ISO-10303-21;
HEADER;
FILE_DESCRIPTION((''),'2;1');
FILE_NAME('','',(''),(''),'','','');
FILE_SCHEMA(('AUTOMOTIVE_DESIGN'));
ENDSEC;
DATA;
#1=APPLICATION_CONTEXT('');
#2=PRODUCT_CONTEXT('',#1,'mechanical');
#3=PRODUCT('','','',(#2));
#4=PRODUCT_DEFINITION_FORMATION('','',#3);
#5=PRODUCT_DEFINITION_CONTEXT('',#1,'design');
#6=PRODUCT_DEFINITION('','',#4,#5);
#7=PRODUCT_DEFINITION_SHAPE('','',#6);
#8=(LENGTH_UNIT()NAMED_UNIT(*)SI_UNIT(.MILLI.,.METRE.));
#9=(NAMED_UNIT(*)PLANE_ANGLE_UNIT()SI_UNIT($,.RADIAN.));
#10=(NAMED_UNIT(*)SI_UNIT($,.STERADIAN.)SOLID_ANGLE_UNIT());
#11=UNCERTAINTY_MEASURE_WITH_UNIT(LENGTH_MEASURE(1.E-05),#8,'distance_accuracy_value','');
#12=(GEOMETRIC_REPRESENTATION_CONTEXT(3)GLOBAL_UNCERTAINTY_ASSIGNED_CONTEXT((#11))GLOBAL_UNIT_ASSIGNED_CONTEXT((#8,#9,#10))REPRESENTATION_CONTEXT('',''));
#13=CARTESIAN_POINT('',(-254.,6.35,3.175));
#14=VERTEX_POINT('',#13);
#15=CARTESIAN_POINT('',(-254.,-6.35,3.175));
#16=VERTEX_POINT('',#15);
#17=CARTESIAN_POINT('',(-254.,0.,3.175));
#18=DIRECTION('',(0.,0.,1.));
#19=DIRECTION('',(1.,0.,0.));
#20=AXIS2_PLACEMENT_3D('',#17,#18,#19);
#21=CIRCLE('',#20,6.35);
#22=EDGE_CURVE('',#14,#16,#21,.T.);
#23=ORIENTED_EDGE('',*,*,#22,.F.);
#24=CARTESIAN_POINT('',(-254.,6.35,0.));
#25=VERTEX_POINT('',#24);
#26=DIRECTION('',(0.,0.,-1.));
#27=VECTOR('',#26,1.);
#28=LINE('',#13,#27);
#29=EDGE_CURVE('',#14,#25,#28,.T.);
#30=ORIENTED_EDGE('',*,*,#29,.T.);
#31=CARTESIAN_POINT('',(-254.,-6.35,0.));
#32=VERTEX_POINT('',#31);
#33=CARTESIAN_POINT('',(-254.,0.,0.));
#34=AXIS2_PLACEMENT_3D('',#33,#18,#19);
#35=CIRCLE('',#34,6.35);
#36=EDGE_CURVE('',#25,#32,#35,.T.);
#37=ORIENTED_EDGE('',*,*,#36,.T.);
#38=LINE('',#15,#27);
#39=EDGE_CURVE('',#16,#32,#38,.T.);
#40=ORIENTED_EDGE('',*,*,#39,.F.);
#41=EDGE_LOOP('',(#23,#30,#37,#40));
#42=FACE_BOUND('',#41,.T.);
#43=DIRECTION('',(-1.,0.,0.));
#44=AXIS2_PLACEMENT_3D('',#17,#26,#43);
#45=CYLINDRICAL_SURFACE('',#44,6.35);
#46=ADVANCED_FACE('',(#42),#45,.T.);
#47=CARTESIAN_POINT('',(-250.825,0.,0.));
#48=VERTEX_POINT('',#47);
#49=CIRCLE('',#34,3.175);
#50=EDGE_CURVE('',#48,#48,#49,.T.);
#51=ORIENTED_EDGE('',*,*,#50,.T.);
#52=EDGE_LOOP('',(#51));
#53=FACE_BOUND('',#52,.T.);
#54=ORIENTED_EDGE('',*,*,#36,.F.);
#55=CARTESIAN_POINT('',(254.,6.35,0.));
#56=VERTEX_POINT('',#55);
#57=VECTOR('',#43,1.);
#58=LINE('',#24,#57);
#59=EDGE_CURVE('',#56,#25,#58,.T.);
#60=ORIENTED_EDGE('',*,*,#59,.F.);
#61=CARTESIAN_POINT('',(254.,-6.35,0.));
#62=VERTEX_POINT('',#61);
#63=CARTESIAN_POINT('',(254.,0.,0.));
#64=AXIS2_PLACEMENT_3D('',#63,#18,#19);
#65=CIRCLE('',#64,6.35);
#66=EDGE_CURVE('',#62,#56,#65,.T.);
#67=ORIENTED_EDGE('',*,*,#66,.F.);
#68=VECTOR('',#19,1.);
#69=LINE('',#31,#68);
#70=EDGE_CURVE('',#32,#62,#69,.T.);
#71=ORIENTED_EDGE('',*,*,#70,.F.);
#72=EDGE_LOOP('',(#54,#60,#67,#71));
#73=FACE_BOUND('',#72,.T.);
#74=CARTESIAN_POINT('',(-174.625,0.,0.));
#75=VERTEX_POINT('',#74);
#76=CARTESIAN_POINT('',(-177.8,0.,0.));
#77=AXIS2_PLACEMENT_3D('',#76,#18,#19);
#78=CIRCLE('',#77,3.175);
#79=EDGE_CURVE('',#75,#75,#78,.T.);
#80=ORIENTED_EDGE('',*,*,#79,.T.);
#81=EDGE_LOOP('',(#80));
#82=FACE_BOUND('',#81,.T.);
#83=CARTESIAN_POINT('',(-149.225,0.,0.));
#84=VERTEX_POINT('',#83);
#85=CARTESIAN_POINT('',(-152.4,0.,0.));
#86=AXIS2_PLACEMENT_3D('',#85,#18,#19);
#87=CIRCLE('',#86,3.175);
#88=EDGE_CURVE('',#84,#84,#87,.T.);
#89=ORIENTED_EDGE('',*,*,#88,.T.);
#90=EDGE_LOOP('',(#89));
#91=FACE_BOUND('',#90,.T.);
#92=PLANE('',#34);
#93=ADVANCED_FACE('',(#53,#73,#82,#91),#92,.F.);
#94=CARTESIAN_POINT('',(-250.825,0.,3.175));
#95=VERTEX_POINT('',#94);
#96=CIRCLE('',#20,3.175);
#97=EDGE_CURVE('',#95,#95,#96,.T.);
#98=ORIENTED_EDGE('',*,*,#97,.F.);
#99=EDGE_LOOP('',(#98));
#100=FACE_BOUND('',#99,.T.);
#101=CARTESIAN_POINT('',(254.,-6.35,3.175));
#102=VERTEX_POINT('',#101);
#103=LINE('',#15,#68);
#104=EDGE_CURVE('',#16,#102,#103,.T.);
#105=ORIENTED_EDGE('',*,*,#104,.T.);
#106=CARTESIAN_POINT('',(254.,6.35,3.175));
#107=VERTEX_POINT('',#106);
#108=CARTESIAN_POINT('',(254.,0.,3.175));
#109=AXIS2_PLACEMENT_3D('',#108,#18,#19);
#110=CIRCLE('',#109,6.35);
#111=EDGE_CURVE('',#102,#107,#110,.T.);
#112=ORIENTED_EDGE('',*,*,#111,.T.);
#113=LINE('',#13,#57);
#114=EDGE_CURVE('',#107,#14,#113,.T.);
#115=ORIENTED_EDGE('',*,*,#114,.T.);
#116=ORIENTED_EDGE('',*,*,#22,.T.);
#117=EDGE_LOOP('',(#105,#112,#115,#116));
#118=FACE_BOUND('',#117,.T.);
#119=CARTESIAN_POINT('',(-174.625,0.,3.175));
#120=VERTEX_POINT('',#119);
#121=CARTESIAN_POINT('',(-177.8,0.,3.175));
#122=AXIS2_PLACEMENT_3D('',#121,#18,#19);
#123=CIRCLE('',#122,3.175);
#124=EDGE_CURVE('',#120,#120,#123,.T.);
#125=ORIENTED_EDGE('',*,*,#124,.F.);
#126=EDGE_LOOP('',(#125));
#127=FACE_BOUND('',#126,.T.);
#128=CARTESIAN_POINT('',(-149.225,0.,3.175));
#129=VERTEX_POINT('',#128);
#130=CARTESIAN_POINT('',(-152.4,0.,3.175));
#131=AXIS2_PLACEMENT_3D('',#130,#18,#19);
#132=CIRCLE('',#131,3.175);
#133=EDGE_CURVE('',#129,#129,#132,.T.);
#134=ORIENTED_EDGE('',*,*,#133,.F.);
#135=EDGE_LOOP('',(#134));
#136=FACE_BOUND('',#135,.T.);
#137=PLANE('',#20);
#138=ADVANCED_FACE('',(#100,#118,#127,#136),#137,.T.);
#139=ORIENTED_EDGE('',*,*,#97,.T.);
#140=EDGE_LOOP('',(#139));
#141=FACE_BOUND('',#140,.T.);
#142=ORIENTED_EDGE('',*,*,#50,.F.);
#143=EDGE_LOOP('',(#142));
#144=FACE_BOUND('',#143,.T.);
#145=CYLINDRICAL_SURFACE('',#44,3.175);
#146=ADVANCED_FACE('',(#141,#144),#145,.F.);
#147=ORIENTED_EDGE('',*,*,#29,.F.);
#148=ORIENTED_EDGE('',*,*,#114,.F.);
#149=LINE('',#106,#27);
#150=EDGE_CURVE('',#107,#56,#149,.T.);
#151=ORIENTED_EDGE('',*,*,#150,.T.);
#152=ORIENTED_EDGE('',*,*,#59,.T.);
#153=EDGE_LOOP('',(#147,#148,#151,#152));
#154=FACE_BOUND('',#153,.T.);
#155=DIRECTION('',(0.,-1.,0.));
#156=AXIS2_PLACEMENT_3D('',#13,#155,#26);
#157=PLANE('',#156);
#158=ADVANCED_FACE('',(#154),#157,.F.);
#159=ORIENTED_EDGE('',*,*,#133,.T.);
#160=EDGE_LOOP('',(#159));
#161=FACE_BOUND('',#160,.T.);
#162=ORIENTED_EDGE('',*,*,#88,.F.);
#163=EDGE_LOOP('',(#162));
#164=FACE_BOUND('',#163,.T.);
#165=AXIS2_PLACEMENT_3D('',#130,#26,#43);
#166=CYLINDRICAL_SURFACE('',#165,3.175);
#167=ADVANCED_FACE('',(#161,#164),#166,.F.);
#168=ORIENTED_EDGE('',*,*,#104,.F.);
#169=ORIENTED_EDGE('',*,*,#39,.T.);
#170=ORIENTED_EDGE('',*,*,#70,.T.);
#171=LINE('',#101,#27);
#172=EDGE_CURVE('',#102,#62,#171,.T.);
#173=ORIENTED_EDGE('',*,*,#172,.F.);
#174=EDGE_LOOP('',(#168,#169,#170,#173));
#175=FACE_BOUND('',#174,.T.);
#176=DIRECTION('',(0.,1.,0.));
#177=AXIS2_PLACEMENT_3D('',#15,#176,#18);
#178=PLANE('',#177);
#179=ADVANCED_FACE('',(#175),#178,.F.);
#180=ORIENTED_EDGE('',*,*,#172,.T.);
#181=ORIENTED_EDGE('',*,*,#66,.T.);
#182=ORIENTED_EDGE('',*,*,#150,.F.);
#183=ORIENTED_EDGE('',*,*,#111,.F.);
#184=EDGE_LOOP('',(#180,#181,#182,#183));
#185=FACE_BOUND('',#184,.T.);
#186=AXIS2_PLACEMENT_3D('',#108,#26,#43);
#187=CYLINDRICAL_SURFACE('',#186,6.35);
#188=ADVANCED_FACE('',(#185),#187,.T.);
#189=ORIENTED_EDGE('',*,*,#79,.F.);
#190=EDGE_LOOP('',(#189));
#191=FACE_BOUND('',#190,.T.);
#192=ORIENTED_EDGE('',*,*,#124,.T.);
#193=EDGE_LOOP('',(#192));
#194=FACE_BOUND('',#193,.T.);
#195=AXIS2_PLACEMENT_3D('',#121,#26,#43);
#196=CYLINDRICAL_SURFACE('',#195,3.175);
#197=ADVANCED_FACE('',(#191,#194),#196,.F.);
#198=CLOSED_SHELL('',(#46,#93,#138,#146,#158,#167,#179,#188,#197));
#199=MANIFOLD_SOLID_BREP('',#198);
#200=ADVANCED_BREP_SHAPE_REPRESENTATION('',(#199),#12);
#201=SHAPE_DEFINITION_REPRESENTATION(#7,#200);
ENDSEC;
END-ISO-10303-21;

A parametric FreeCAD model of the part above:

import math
import FreeCAD as App
import Part
import Sketcher
from FreeCAD import Vector
Q = App.Units.Quantity

doc = App.newDocument("Part")
params = doc.addObject("Spreadsheet::Sheet", "Params")
for row, (alias, value) in enumerate([
    ("sketch1_diameter", "0.25 in"),
    ("sketch1_width", "20 in"),
    ("sketch1_radius", "0.25 in"),
    ("pad1_length", "0.125 in"),
], start=1):
    params.set(f"A{row}", alias)
    params.set(f"B{row}", "=" + value)
    params.setAlias(f"B{row}", alias)

body = doc.addObject("PartDesign::Body", "Body")

# Sketch on XY plane
sketch1 = doc.addObject("Sketcher::SketchObject", "Sketch")
body.addObject(sketch1)
sketch1.AttachmentSupport = (doc.XY_Plane, [""])
sketch1.MapMode = "FlatFace"
sketch1.addGeometry([
    Part.LineSegment(Vector(254, 6.35, 0), Vector(-254, 6.35, 0)),  # 0
    Part.ArcOfCircle(Part.Circle(Vector(-254, 0, 0), Vector(0, 0, 1), 6.35), math.radians(90), math.radians(270)),  # 1
    Part.LineSegment(Vector(-254, -6.35, 0), Vector(254, -6.35, 0)),  # 2
    Part.ArcOfCircle(Part.Circle(Vector(254, 0, 0), Vector(0, 0, 1), 6.35), math.radians(-90), math.radians(90)),  # 3
    Part.Circle(Vector(-152.4, 0, 0), Vector(0, 0, 1), 3.175),  # 4
    Part.Circle(Vector(-177.8, 0, 0), Vector(0, 0, 1), 3.175),  # 5
    Part.Circle(Vector(-254, 0, 0), Vector(0, 0, 1), 3.175),  # 6
], False)
sketch1.addConstraint([
    Sketcher.Constraint("Tangent", 0, 2, 1, 1),
    Sketcher.Constraint("Tangent", 1, 2, 2, 1),
    Sketcher.Constraint("Tangent", 2, 2, 3, 1),
    Sketcher.Constraint("Tangent", 3, 2, 0, 1),
    Sketcher.Constraint("Horizontal", 0),
    Sketcher.Constraint("Horizontal", 2),
    Sketcher.Constraint("Coincident", 6, 3, 1, 3),
    Sketcher.Constraint("Equal", 4, 5),
    Sketcher.Constraint("Equal", 5, 6),
    Sketcher.Constraint("Symmetric", 1, 3, 3, 3, -1, 1),
    Sketcher.Constraint("PointOnObject", 4, 3, -1),
    Sketcher.Constraint("PointOnObject", 5, 3, -1),
    Sketcher.Constraint("Diameter", 4, Q("0.25 in")),
    Sketcher.Constraint("DistanceX", 0, 2, 0, 1, Q("20 in")),
    Sketcher.Constraint("Radius", 1, Q("0.25 in")),
    Sketcher.Constraint("DistanceX", 4, 3, -1, 1, Q("6 in")),
    Sketcher.Constraint("DistanceX", 5, 3, -1, 1, Q("7 in")),
])
sketch1.setExpression("Constraints[12]", "Params.sketch1_diameter")
sketch1.setExpression("Constraints[13]", "Params.sketch1_width")
sketch1.setExpression("Constraints[14]", "Params.sketch1_radius")
pad1 = doc.addObject("PartDesign::Pad", "Pad")
body.addObject(pad1)
pad1.Profile = sketch1
pad1.setExpression("Length", "Params.pad1_length")

doc.recompute()
